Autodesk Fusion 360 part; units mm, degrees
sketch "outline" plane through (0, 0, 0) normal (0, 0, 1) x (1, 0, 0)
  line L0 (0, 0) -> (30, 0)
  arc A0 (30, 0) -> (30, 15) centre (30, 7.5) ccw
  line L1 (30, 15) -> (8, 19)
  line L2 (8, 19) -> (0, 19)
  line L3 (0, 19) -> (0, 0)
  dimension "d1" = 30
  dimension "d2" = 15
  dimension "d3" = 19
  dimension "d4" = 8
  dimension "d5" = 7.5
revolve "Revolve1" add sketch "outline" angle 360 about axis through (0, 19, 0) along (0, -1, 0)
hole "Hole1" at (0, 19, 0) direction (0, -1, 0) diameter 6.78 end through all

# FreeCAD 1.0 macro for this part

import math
import FreeCAD as App
import Part
import Sketcher
from FreeCAD import Vector
Q = App.Units.Quantity

doc = App.newDocument("Part")
body = doc.addObject("PartDesign::Body", "Body")

# Sketch on XY plane
sketch1 = body.newObject("Sketcher::SketchObject", "Sketch")
sketch1.AttachmentSupport = (doc.getObject("XY_Plane"), [""])
sketch1.MapMode = "FlatFace"
sketch1.addGeometry([
    Part.LineSegment(Vector(0, 19, 0), Vector(0, 0, 0)),  # 0
    Part.LineSegment(Vector(0, 0, 0), Vector(30, 0, 0)),  # 1
    Part.ArcOfCircle(Part.Circle(Vector(30, 8, 0), Vector(0, 0, 1), 8), math.radians(-90), math.radians(90)),  # 2
    Part.LineSegment(Vector(30, 15, 0), Vector(8, 19, 0)),  # 3
    Part.LineSegment(Vector(8, 19, 0), Vector(0, 19, 0)),  # 4
], False)
sketch1.addConstraint([
    Sketcher.Constraint("Coincident", 0, 2, 1, 1),
    Sketcher.Constraint("Tangent", 1, 2, 2, 1),
    Sketcher.Constraint("Coincident", 2, 2, 3, 1),
    Sketcher.Constraint("Coincident", 3, 2, 4, 1),
    Sketcher.Constraint("Coincident", 4, 2, 0, 1),
    Sketcher.Constraint("Vertical", 0),
    Sketcher.Constraint("Horizontal", 1),
    Sketcher.Constraint("Horizontal", 4),
    Sketcher.Constraint("Coincident", 0, 2, -1, 1),
    Sketcher.Constraint("Vertical", 1, 2, 2, 2),
    Sketcher.Constraint("Radius", 2, Q("7.5 mm")),
    Sketcher.Constraint("DistanceX", 1, 1, 1, 2, Q("30 mm")),
    Sketcher.Constraint("DistanceX", 4, 2, 4, 1, Q("8 mm")),
    Sketcher.Constraint("DistanceY", 0, 2, 0, 1, Q("19 mm")),
])
revolution = body.newObject("PartDesign::Revolution", "Revolution")
revolution.Profile = sketch1
revolution.ReferenceAxis = (sketch1, ["V_Axis"])
revolution.Angle = 360

# Sketch on XZ plane
sketch2 = body.newObject("Sketcher::SketchObject", "Sketch001")
sketch2.AttachmentSupport = (doc.getObject("XZ_Plane"), [""])
sketch2.MapMode = "FlatFace"
sketch2.AttachmentOffset = App.Placement(Vector(0, 0, -19), App.Rotation())
sketch2.addGeometry(Part.Circle(Vector(0, 0, 0), Vector(0, 0, 1), 3.4), False)
sketch2.addConstraint([
    Sketcher.Constraint("Coincident", 0, 3, -1, 1),
    Sketcher.Constraint("Diameter", 0, Q("6.78 mm")),
])
doc.recompute()
hole = body.newObject("PartDesign::Hole", "Hole")
hole.Profile = sketch2
hole.ThreadType = "None"
hole.Diameter = 6.78
hole.DepthType = "ThroughAll"
hole.Reversed = True

doc.recompute()
